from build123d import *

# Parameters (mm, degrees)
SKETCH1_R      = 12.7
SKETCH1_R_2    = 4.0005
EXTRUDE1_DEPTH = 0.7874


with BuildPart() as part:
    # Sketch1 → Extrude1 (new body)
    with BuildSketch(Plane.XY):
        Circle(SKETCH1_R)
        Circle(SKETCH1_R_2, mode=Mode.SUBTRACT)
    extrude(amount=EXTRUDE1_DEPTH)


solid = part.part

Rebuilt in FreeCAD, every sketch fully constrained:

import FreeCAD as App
import Part
import Sketcher
from FreeCAD import Vector
Q = App.Units.Quantity

doc = App.newDocument("Part")
body = doc.addObject("PartDesign::Body", "Body")

# Sketch on XY plane
sketch1 = body.newObject("Sketcher::SketchObject", "Sketch")
sketch1.AttachmentSupport = (doc.getObject("XY_Plane"), [""])
sketch1.MapMode = "FlatFace"
sketch1.addGeometry(Part.Circle(Vector(0, 0, 0), Vector(0, 0, 1), 12.7), False)
sketch1.addGeometry(Part.Circle(Vector(0, 0, 0), Vector(0, 0, 1), 4), False)
sketch1.addConstraint(Sketcher.Constraint("Coincident", 0, 3, -1, 1))
sketch1.addConstraint(Sketcher.Constraint("Coincident", 1, 3, -1, 1))
sketch1.addConstraint(Sketcher.Constraint("Diameter", 0, Q("1 in")))
sketch1.addConstraint(Sketcher.Constraint("Diameter", 1, Q("0.315 in")))
pad1 = body.newObject("PartDesign::Pad", "Pad")
pad1.Profile = sketch1
pad1.Length = Q("0.031 in")

doc.recompute()
